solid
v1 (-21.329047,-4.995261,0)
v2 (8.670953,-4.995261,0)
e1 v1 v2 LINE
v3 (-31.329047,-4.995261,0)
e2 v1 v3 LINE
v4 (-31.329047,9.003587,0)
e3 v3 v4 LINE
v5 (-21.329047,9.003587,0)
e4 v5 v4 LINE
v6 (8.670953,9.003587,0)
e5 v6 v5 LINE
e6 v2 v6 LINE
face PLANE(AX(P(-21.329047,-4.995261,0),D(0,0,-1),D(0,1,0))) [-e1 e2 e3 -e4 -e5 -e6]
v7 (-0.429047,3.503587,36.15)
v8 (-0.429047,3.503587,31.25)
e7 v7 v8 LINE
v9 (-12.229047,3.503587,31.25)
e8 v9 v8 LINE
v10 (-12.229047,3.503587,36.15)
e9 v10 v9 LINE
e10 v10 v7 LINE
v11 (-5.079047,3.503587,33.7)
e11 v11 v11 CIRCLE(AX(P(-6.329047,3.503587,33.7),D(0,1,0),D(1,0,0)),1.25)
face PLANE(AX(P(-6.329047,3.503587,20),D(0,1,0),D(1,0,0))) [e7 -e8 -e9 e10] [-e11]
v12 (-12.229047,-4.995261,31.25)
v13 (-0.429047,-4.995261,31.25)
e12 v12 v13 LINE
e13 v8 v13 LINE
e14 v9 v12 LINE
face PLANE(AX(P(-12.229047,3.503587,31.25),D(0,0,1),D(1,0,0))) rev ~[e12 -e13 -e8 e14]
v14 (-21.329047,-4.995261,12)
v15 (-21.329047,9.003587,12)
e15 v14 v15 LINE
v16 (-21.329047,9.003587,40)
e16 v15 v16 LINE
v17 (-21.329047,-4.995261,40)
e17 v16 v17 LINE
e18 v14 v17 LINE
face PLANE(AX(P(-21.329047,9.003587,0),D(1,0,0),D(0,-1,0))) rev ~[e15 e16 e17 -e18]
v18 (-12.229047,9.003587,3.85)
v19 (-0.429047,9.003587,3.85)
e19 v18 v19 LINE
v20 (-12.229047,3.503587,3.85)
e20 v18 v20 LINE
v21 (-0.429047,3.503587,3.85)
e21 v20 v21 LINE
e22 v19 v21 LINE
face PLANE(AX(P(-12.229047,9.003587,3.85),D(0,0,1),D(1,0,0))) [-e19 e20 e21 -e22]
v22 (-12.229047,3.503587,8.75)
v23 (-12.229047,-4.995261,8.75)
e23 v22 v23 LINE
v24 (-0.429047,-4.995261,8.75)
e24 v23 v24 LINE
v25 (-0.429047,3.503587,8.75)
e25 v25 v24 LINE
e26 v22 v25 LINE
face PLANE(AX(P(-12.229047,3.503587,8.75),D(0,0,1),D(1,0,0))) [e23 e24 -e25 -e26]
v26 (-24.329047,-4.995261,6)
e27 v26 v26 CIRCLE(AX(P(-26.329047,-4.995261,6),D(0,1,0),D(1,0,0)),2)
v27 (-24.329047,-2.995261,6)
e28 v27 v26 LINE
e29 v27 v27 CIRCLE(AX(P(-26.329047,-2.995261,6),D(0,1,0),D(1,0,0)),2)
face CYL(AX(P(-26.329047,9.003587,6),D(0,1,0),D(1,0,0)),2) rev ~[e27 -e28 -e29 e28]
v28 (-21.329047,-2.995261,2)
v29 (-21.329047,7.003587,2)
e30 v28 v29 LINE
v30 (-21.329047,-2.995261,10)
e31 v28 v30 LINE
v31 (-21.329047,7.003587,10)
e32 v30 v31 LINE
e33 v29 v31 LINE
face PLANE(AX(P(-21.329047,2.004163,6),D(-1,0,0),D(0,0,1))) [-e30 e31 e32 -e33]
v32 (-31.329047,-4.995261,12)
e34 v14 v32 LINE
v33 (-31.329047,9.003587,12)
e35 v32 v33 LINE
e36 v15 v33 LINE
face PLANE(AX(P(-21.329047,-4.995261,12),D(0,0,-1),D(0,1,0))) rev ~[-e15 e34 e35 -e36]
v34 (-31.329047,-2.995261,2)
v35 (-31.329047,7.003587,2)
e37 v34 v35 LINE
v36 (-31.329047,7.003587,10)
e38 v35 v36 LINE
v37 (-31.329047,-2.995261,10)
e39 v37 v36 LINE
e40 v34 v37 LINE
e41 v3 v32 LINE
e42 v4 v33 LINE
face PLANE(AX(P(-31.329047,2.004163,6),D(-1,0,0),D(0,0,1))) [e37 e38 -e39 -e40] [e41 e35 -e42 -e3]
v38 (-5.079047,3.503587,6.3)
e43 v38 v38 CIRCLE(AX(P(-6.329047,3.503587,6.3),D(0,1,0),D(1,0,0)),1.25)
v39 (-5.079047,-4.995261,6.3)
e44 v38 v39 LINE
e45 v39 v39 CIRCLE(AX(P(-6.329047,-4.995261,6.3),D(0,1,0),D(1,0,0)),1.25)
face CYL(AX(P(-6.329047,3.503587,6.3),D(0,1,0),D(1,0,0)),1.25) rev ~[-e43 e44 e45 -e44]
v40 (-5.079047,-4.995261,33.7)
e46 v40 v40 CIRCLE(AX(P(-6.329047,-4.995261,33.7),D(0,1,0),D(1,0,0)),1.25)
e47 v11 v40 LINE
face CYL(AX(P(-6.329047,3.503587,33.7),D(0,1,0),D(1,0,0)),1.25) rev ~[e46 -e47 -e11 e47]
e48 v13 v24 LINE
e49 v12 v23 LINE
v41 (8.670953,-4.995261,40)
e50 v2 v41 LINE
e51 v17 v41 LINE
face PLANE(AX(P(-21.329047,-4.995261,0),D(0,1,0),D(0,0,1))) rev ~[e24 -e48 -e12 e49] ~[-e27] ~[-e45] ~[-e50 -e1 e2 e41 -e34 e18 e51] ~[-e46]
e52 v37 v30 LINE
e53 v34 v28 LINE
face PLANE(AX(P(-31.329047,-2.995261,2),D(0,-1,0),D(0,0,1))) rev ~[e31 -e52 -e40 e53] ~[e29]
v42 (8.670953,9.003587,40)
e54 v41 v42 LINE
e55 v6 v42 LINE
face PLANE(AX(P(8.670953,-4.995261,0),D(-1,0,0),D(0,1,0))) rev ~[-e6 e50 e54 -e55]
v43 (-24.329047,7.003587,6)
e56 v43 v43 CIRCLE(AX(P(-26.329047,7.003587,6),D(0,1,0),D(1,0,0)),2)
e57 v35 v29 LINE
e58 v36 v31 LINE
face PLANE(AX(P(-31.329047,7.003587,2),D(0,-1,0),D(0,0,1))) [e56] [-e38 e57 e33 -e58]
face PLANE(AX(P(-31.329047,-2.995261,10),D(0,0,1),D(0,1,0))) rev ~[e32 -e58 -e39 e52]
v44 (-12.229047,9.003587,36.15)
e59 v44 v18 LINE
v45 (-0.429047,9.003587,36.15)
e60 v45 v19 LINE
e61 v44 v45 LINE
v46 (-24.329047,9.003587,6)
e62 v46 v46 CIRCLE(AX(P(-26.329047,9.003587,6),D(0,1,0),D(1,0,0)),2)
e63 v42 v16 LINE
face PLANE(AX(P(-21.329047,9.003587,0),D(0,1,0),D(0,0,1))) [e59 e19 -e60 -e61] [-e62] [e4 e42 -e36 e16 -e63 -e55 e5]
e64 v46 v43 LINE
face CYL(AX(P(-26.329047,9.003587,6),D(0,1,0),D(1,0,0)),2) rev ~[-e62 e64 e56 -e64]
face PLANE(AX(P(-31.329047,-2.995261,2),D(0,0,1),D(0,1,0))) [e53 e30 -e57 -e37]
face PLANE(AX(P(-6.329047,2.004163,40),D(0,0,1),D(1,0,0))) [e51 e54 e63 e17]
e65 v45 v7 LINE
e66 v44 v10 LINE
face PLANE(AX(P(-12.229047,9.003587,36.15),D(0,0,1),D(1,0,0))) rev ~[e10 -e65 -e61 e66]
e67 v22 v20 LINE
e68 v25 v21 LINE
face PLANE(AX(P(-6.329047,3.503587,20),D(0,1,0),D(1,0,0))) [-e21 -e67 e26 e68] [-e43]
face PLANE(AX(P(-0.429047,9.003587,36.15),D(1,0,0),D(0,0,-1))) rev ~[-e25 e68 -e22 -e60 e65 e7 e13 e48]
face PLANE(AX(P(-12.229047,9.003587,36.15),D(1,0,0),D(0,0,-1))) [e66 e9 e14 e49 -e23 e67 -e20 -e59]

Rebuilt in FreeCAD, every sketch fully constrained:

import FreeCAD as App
import Part
import Sketcher
Q = App.Units.Quantity

doc = App.newDocument("Part")
body = doc.addObject("PartDesign::Body", "Body")

# Sketch on XY plane
sketch1 = doc.addObject("Sketcher::SketchObject", "Sketch")
body.addObject(sketch1)
sketch1.AttachmentSupport = (doc.XY_Plane, [""])
sketch1.MapMode = "FlatFace"
sketch1.addGeometry([
    Part.LineSegment(App.Vector(8.670953, 9.003587, 0), App.Vector(-21.329047, 9.003587, 0)),
    Part.LineSegment(App.Vector(-21.329047, 9.003587, 0), App.Vector(-21.329047, -4.995261, 0)),
    Part.LineSegment(App.Vector(-21.329047, -4.995261, 0), App.Vector(8.670953, -4.995261, 0)),
    Part.LineSegment(App.Vector(8.670953, -4.995261, 0), App.Vector(8.670953, 9.003587, 0)),
], False)
sketch1.addConstraint([
    Sketcher.Constraint("Coincident", 0, 2, 1, 1),
    Sketcher.Constraint("Coincident", 1, 2, 2, 1),
    Sketcher.Constraint("Coincident", 2, 2, 3, 1),
    Sketcher.Constraint("Coincident", 3, 2, 0, 1),
    Sketcher.Constraint("Horizontal", 0),
    Sketcher.Constraint("Vertical", 1),
    Sketcher.Constraint("Horizontal", 2),
    Sketcher.Constraint("Vertical", 3),
    Sketcher.Constraint("DistanceX", 0, 2, 0, 1, Q("30 mm")),
    Sketcher.Constraint("DistanceY", 1, 2, 1, 1, Q("13.998848 mm")),
    Sketcher.Constraint("DistanceY", 1, 2, -1, 1, Q("4.995261 mm")),
    Sketcher.Constraint("DistanceX", 0, 2, -1, 1, Q("21.329047 mm")),
])
pad1 = doc.addObject("PartDesign::Pad", "Pad")
body.addObject(pad1)
pad1.Profile = sketch1
pad1.Length = 40

# Sketch on XZ plane
sketch2 = doc.addObject("Sketcher::SketchObject", "Sketch001")
body.addObject(sketch2)
sketch2.AttachmentSupport = (doc.XZ_Plane, [""])
sketch2.MapMode = "FlatFace"
sketch2.AttachmentOffset = App.Placement(App.Vector(0, 0, -9.003587), App.Rotation())
sketch2.addGeometry([
    Part.LineSegment(App.Vector(-12.229047, 3.85, 0), App.Vector(-12.229047, 36.15, 0)),
    Part.LineSegment(App.Vector(-12.229047, 36.15, 0), App.Vector(-0.429047, 36.15, 0)),
    Part.LineSegment(App.Vector(-0.429047, 36.15, 0), App.Vector(-0.429047, 3.85, 0)),
    Part.LineSegment(App.Vector(-0.429047, 3.85, 0), App.Vector(-12.229047, 3.85, 0)),
], False)
sketch2.addConstraint([
    Sketcher.Constraint("Coincident", 0, 2, 1, 1),
    Sketcher.Constraint("Coincident", 1, 2, 2, 1),
    Sketcher.Constraint("Coincident", 2, 2, 3, 1),
    Sketcher.Constraint("Coincident", 3, 2, 0, 1),
    Sketcher.Constraint("Vertical", 0),
    Sketcher.Constraint("Horizontal", 1),
    Sketcher.Constraint("Vertical", 2),
    Sketcher.Constraint("Horizontal", 3),
    Sketcher.Constraint("DistanceX", 1, 1, 1, 2, Q("11.8 mm")),
    Sketcher.Constraint("DistanceY", 0, 1, 0, 2, Q("32.3 mm")),
    Sketcher.Constraint("DistanceY", -1, 1, 0, 2, Q("36.15 mm")),
    Sketcher.Constraint("DistanceX", 0, 2, -1, 1, Q("12.229047 mm")),
])
pocket1 = doc.addObject("PartDesign::Pocket", "Pocket")
body.addObject(pocket1)
pocket1.Profile = sketch2
pocket1.Length = 5.5
pocket1.Reversed = True

# Sketch on XZ plane
sketch3 = doc.addObject("Sketcher::SketchObject", "Sketch002")
body.addObject(sketch3)
sketch3.AttachmentSupport = (doc.XZ_Plane, [""])
sketch3.MapMode = "FlatFace"
sketch3.AttachmentOffset = App.Placement(App.Vector(0, 0, -3.503587), App.Rotation())
sketch3.addGeometry([
    Part.LineSegment(App.Vector(-12.229047, 8.75, 0), App.Vector(-12.229047, 31.25, 0)),
    Part.LineSegment(App.Vector(-12.229047, 31.25, 0), App.Vector(-0.429047, 31.25, 0)),
    Part.LineSegment(App.Vector(-0.429047, 31.25, 0), App.Vector(-0.429047, 8.75, 0)),
    Part.LineSegment(App.Vector(-0.429047, 8.75, 0), App.Vector(-12.229047, 8.75, 0)),
], False)
sketch3.addConstraint([
    Sketcher.Constraint("Coincident", 0, 2, 1, 1),
    Sketcher.Constraint("Coincident", 1, 2, 2, 1),
    Sketcher.Constraint("Coincident", 2, 2, 3, 1),
    Sketcher.Constraint("Coincident", 3, 2, 0, 1),
    Sketcher.Constraint("Vertical", 0),
    Sketcher.Constraint("Horizontal", 1),
    Sketcher.Constraint("Vertical", 2),
    Sketcher.Constraint("Horizontal", 3),
    Sketcher.Constraint("DistanceX", 1, 1, 1, 2, Q("11.8 mm")),
    Sketcher.Constraint("DistanceY", 0, 1, 0, 2, Q("22.5 mm")),
    Sketcher.Constraint("DistanceY", -1, 1, 0, 2, Q("31.25 mm")),
    Sketcher.Constraint("DistanceX", 0, 2, -1, 1, Q("12.229047 mm")),
])
pocket2 = doc.addObject("PartDesign::Pocket", "Pocket001")
body.addObject(pocket2)
pocket2.Profile = sketch3
pocket2.Type = "ThroughAll"
pocket2.Reversed = True

# Sketch on XZ plane
sketch4 = doc.addObject("Sketcher::SketchObject", "Sketch003")
body.addObject(sketch4)
sketch4.AttachmentSupport = (doc.XZ_Plane, [""])
sketch4.MapMode = "FlatFace"
sketch4.AttachmentOffset = App.Placement(App.Vector(0, 0, -3.503587), App.Rotation())
sketch4.addGeometry([
    Part.Circle(App.Vector(-6.329047, 6.3, 0), App.Vector(0, 0, 1), 1.25),
    Part.Circle(App.Vector(-6.329047, 33.7, 0), App.Vector(0, 0, 1), 1.25),
], False)
sketch4.addConstraint([
    Sketcher.Constraint("Equal", 0, 1),
    Sketcher.Constraint("Vertical", 0, 3, 1, 3),
    Sketcher.Constraint("Diameter", 0, Q("2.5 mm")),
    Sketcher.Constraint("DistanceY", -1, 1, 0, 3, Q("6.3 mm")),
    Sketcher.Constraint("DistanceY", -1, 1, 1, 3, Q("33.7 mm")),
    Sketcher.Constraint("DistanceX", 0, 3, -1, 1, Q("6.329047 mm")),
])
pocket3 = doc.addObject("PartDesign::Pocket", "Pocket002")
body.addObject(pocket3)
pocket3.Profile = sketch4
pocket3.Type = "ThroughAll"
pocket3.Reversed = True

# Sketch on YZ plane
sketch5 = doc.addObject("Sketcher::SketchObject", "Sketch004")
body.addObject(sketch5)
sketch5.AttachmentSupport = (doc.YZ_Plane, [""])
sketch5.MapMode = "FlatFace"
sketch5.AttachmentOffset = App.Placement(App.Vector(0, 0, -21.329047), App.Rotation())
sketch5.addGeometry([
    Part.LineSegment(App.Vector(9.003587, 0, 0), App.Vector(-4.995261, 0, 0)),
    Part.LineSegment(App.Vector(-4.995261, 0, 0), App.Vector(-4.995261, 12, 0)),
    Part.LineSegment(App.Vector(-4.995261, 12, 0), App.Vector(9.003587, 12, 0)),
    Part.LineSegment(App.Vector(9.003587, 12, 0), App.Vector(9.003587, 0, 0)),
], False)
sketch5.addConstraint([
    Sketcher.Constraint("Coincident", 0, 2, 1, 1),
    Sketcher.Constraint("Coincident", 1, 2, 2, 1),
    Sketcher.Constraint("Coincident", 2, 2, 3, 1),
    Sketcher.Constraint("Coincident", 3, 2, 0, 1),
    Sketcher.Constraint("Horizontal", 0),
    Sketcher.Constraint("Vertical", 1),
    Sketcher.Constraint("Horizontal", 2),
    Sketcher.Constraint("Vertical", 3),
    Sketcher.Constraint("PointOnObject", 0, 2, -1),
    Sketcher.Constraint("DistanceY", 1, 1, 1, 2, Q("12 mm")),
    Sketcher.Constraint("DistanceX", 0, 2, 0, 1, Q("13.998848 mm")),
    Sketcher.Constraint("DistanceX", 0, 2, -1, 1, Q("4.995261 mm")),
])
pad2 = doc.addObject("PartDesign::Pad", "Pad001")
body.addObject(pad2)
pad2.Profile = sketch5
pad2.Length = 10
pad2.Reversed = True

# Sketch on YZ plane
sketch6 = doc.addObject("Sketcher::SketchObject", "Sketch005")
body.addObject(sketch6)
sketch6.AttachmentSupport = (doc.YZ_Plane, [""])
sketch6.MapMode = "FlatFace"
sketch6.AttachmentOffset = App.Placement(App.Vector(0, 0, -31.329047), App.Rotation())
sketch6.addGeometry([
    Part.LineSegment(App.Vector(7.003587, 2, 0), App.Vector(-2.995261, 2, 0)),
    Part.LineSegment(App.Vector(-2.995261, 2, 0), App.Vector(-2.995261, 10, 0)),
    Part.LineSegment(App.Vector(-2.995261, 10, 0), App.Vector(7.003587, 10, 0)),
    Part.LineSegment(App.Vector(7.003587, 10, 0), App.Vector(7.003587, 2, 0)),
], False)
sketch6.addConstraint([
    Sketcher.Constraint("Coincident", 0, 2, 1, 1),
    Sketcher.Constraint("Coincident", 1, 2, 2, 1),
    Sketcher.Constraint("Coincident", 2, 2, 3, 1),
    Sketcher.Constraint("Coincident", 3, 2, 0, 1),
    Sketcher.Constraint("Horizontal", 0),
    Sketcher.Constraint("Vertical", 1),
    Sketcher.Constraint("Horizontal", 2),
    Sketcher.Constraint("Vertical", 3),
    Sketcher.Constraint("DistanceY", 1, 1, 1, 2, Q("8 mm")),
    Sketcher.Constraint("DistanceY", -1, 1, 0, 2, Q("2 mm")),
    Sketcher.Constraint("DistanceX", 0, 2, 0, 1, Q("9.998848 mm")),
    Sketcher.Constraint("DistanceX", 0, 2, -1, 1, Q("2.995261 mm")),
])
pocket4 = doc.addObject("PartDesign::Pocket", "Pocket003")
body.addObject(pocket4)
pocket4.Profile = sketch6
pocket4.Length = 10
pocket4.Reversed = True

# Sketch on XZ plane
sketch7 = doc.addObject("Sketcher::SketchObject", "Sketch006")
body.addObject(sketch7)
sketch7.AttachmentSupport = (doc.XZ_Plane, [""])
sketch7.MapMode = "FlatFace"
sketch7.AttachmentOffset = App.Placement(App.Vector(0, 0, -9.003587), App.Rotation())
sketch7.addGeometry(Part.Circle(App.Vector(-26.329047, 6, 0), App.Vector(0, 0, 1), 2), False)
sketch7.addConstraint([
    Sketcher.Constraint("Diameter", 0, Q("4 mm")),
    Sketcher.Constraint("DistanceY", -1, 1, 0, 3, Q("6 mm")),
    Sketcher.Constraint("DistanceX", 0, 3, -1, 1, Q("26.329047 mm")),
])
pocket5 = doc.addObject("PartDesign::Pocket", "Pocket004")
body.addObject(pocket5)
pocket5.Profile = sketch7
pocket5.Type = "ThroughAll"
pocket5.Reversed = True

doc.recompute()
